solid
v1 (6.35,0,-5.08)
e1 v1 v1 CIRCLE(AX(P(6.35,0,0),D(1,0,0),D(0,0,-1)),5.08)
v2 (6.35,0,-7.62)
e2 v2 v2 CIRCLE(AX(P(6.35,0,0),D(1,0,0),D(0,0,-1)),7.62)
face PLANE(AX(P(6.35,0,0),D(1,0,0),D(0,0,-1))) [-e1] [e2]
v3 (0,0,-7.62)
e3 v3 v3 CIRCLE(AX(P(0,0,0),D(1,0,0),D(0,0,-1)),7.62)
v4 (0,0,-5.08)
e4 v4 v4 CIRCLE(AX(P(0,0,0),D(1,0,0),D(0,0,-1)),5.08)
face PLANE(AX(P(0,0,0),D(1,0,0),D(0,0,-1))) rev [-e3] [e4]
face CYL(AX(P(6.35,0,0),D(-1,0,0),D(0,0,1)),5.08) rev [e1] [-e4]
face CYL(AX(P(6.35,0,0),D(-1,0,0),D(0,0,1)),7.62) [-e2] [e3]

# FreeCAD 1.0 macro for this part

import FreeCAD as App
import Part
import Sketcher
Q = App.Units.Quantity

doc = App.newDocument("Part")
body = doc.addObject("PartDesign::Body", "Body")

# Sketch on YZ plane
sketch1 = body.newObject("Sketcher::SketchObject", "Sketch")
sketch1.AttachmentSupport = (doc.getObject("YZ_Plane"), [""])
sketch1.MapMode = "FlatFace"
sketch1.addGeometry(Part.Circle(App.Vector(0, 0, 0), App.Vector(0, 0, 1), 7.62), False)
sketch1.addGeometry(Part.Circle(App.Vector(0, 0, 0), App.Vector(0, 0, 1), 5.08), False)
sketch1.addConstraint(Sketcher.Constraint("Coincident", 0, 3, -1, 1))
sketch1.addConstraint(Sketcher.Constraint("Coincident", 1, 3, -1, 1))
sketch1.addConstraint(Sketcher.Constraint("Diameter", 0, Q("0.6 in")))
sketch1.addConstraint(Sketcher.Constraint("Diameter", 1, Q("0.4 in")))
pad1 = body.newObject("PartDesign::Pad", "Pad")
pad1.Profile = sketch1
pad1.Length = Q("0.25 in")

doc.recompute()
